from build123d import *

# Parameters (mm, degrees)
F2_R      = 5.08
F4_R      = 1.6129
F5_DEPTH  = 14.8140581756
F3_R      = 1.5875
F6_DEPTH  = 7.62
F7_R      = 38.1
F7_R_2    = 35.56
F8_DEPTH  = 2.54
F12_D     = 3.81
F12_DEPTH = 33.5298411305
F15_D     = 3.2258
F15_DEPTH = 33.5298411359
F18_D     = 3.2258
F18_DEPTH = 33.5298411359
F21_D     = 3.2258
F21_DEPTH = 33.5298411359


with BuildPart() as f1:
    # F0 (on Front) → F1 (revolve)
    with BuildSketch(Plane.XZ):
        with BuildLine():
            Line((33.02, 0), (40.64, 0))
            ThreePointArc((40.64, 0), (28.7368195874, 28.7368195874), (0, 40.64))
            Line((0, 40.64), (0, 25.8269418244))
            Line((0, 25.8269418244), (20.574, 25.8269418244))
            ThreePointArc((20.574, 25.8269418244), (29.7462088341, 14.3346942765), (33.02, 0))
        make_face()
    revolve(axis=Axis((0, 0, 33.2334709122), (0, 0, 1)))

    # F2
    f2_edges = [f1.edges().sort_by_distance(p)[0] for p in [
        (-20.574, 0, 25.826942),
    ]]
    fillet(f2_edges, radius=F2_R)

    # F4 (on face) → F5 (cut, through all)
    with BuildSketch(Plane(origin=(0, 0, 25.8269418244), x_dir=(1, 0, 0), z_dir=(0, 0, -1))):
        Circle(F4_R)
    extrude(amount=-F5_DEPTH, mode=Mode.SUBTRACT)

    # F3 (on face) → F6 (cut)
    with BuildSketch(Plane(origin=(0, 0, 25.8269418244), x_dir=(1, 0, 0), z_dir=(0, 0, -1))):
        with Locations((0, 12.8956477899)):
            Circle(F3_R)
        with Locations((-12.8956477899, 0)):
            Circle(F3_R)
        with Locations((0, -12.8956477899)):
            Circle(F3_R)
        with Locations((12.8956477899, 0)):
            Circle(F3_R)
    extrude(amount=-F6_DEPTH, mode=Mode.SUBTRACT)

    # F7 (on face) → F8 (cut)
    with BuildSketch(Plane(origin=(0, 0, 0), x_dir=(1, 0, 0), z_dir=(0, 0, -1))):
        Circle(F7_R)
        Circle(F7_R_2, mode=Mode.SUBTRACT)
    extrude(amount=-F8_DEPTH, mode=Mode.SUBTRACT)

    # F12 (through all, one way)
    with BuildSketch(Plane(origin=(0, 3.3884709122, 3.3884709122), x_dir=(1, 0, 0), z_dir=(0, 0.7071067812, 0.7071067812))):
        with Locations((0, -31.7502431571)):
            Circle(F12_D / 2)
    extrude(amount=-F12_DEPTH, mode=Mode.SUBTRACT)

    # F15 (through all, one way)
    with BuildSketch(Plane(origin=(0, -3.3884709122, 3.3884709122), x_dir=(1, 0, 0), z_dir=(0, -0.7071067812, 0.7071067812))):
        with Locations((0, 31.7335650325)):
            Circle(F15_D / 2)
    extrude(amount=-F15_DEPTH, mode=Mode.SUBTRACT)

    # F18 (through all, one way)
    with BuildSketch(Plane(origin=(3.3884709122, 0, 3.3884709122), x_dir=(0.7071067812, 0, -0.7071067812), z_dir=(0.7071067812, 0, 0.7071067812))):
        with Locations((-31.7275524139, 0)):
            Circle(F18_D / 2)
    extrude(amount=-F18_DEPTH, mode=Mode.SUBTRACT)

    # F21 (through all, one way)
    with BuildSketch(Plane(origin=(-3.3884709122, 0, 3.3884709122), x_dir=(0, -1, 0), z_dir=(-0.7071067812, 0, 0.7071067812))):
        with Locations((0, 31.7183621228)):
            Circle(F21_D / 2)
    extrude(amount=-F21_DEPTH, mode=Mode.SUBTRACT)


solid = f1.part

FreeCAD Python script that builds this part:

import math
import FreeCAD as App
import Part
import Sketcher

V = App.Vector
Q = App.Units.Quantity


def edges_at(feature, points):
    """Names of the edges that pass closest to the given points."""
    edges = feature.Shape.Edges
    near = lambda p: min(range(len(edges)), key=lambda i: edges[i].distToShape(Part.Vertex(*p))[0])
    return sorted({f"Edge{near(p) + 1}" for p in points})

doc = App.newDocument("Part")
body = doc.addObject("PartDesign::Body", "Body")

# Sketch on XZ plane
sketch1 = body.newObject("Sketcher::SketchObject", "Sketch")
sketch1.AttachmentSupport = (doc.getObject("XZ_Plane"), [""])
sketch1.MapMode = "FlatFace"
sketch1.addGeometry(Part.LineSegment(V(33, 0, 0), V(41, 0, 0)), False)
sketch1.addGeometry(Part.ArcOfCircle(Part.Circle(V(0, 0, 0), V(0, 0, 1), 41), math.radians(0), math.radians(90)), False)
sketch1.addGeometry(Part.LineSegment(V(0, 41, 0), V(0, 26, 0)), False)
sketch1.addGeometry(Part.LineSegment(V(0, 26, 0), V(21, 26, 0)), False)
sketch1.addGeometry(Part.ArcOfCircle(Part.Circle(V(0, 0, 0), V(0, 0, 1), 33), math.radians(0), math.radians(51)), False)
sketch1.addConstraint(Sketcher.Constraint("Coincident", 0, 2, 1, 1))
sketch1.addConstraint(Sketcher.Constraint("Coincident", 1, 2, 2, 1))
sketch1.addConstraint(Sketcher.Constraint("Coincident", 2, 2, 3, 1))
sketch1.addConstraint(Sketcher.Constraint("Coincident", 3, 2, 4, 2))
sketch1.addConstraint(Sketcher.Constraint("Coincident", 4, 1, 0, 1))
sketch1.addConstraint(Sketcher.Constraint("Horizontal", 0))
sketch1.addConstraint(Sketcher.Constraint("Vertical", 2))
sketch1.addConstraint(Sketcher.Constraint("Horizontal", 3))
sketch1.addConstraint(Sketcher.Constraint("Coincident", 1, 3, -1, 1))
sketch1.addConstraint(Sketcher.Constraint("Coincident", 4, 3, -1, 1))
sketch1.addConstraint(Sketcher.Constraint("PointOnObject", 0, 2, -1))
sketch1.addConstraint(Sketcher.Constraint("PointOnObject", 1, 2, -2))
sketch1.addConstraint(Sketcher.Constraint("Radius", 1, Q("1.6 in")))
sketch1.addConstraint(Sketcher.Constraint("Radius", 4, Q("1.3 in")))
sketch1.addConstraint(Sketcher.Constraint("DistanceX", 3, 1, 3, 2, Q("0.81 in")))
revolution = body.newObject("PartDesign::Revolution", "Revolution")
revolution.Profile = sketch1
revolution.ReferenceAxis = (sketch1, ["V_Axis"])
revolution.Angle = 360
doc.recompute()

fillet = body.newObject("PartDesign::Fillet", "Fillet")
fillet.Base = (revolution, edges_at(revolution, [(-20.574, 0, 25.827)]))
fillet.Radius = Q("0.2 in")

# Sketch on XY plane
sketch2 = body.newObject("Sketcher::SketchObject", "Sketch001")
sketch2.AttachmentSupport = (doc.getObject("XY_Plane"), [""])
sketch2.MapMode = "FlatFace"
sketch2.AttachmentOffset = App.Placement(V(0, 0, 25.826942), App.Rotation())
sketch2.addGeometry(Part.Circle(V(0, 0, 0), V(0, 0, 1), 1.6), False)
sketch2.addConstraint(Sketcher.Constraint("Coincident", 0, 3, -1, 1))
sketch2.addConstraint(Sketcher.Constraint("Diameter", 0, Q("0.127 in")))
pocket1 = body.newObject("PartDesign::Pocket", "Pocket")
pocket1.Profile = sketch2
pocket1.Type = "ThroughAll"
pocket1.Reversed = True

# Sketch on XY plane
sketch3 = body.newObject("Sketcher::SketchObject", "Sketch002")
sketch3.AttachmentSupport = (doc.getObject("XY_Plane"), [""])
sketch3.MapMode = "FlatFace"
sketch3.AttachmentOffset = App.Placement(V(0, 0, 25.826942), App.Rotation())
sketch3.addGeometry(Part.Circle(V(0, -12.9, 0), V(0, 0, 1), 1.6), False)
sketch3.addGeometry(Part.Circle(V(-12.9, 0, 0), V(0, 0, 1), 1.6), False)
sketch3.addGeometry(Part.Circle(V(0, 12.9, 0), V(0, 0, 1), 1.6), False)
sketch3.addGeometry(Part.Circle(V(12.9, 0, 0), V(0, 0, 1), 1.6), False)
sketch3.addConstraint(Sketcher.Constraint("Equal", 0, 1))
sketch3.addConstraint(Sketcher.Constraint("Equal", 1, 2))
sketch3.addConstraint(Sketcher.Constraint("Equal", 2, 3))
sketch3.addConstraint(Sketcher.Constraint("Symmetric", 0, 3, 2, 3, -1, 1))
sketch3.addConstraint(Sketcher.Constraint("Symmetric", 1, 3, 3, 3, -1, 1))
sketch3.addConstraint(Sketcher.Constraint("PointOnObject", 0, 3, -2))
sketch3.addConstraint(Sketcher.Constraint("PointOnObject", 1, 3, -1))
sketch3.addConstraint(Sketcher.Constraint("Diameter", 0, Q("0.125 in")))
sketch3.addConstraint(Sketcher.Constraint("DistanceY", 0, 3, -1, 1, 12.895648))
sketch3.addConstraint(Sketcher.Constraint("DistanceX", 1, 3, -1, 1, 12.895648))
pocket2 = body.newObject("PartDesign::Pocket", "Pocket001")
pocket2.Profile = sketch3
pocket2.Length = Q("0.3 in")
pocket2.Reversed = True

# Sketch on XY plane
sketch4 = body.newObject("Sketcher::SketchObject", "Sketch003")
sketch4.AttachmentSupport = (doc.getObject("XY_Plane"), [""])
sketch4.MapMode = "FlatFace"
sketch4.addGeometry(Part.Circle(V(0, 0, 0), V(0, 0, 1), 38), False)
sketch4.addGeometry(Part.Circle(V(0, 0, 0), V(0, 0, 1), 36), False)
sketch4.addConstraint(Sketcher.Constraint("Coincident", 0, 3, -1, 1))
sketch4.addConstraint(Sketcher.Constraint("Coincident", 1, 3, -1, 1))
sketch4.addConstraint(Sketcher.Constraint("Diameter", 0, Q("3 in")))
sketch4.addConstraint(Sketcher.Constraint("Diameter", 1, Q("2.8 in")))
pocket3 = body.newObject("PartDesign::Pocket", "Pocket002")
pocket3.Profile = sketch4
pocket3.Length = Q("0.1 in")
pocket3.Reversed = True

# Sketch on an angled plane
sketch5 = body.newObject("Sketcher::SketchObject", "Sketch004")
sketch5.Placement = App.Placement(V(0, 3.388471, 3.388471), App.Rotation(V(1, 0, 0), V(0, 0.707106781, -0.707106781), V(0, 0.707106781, 0.707106781), "ZXY"))
sketch5.addGeometry(Part.Circle(V(0, -31.8, 0), V(0, 0, 1), 1.9), False)
sketch5.addConstraint(Sketcher.Constraint("PointOnObject", 0, 3, -2))
sketch5.addConstraint(Sketcher.Constraint("Diameter", 0, Q("0.15 in")))
sketch5.addConstraint(Sketcher.Constraint("DistanceY", 0, 3, -1, 1, 31.750243))
pocket4 = body.newObject("PartDesign::Pocket", "Pocket003")
pocket4.Profile = sketch5
pocket4.Type = "ThroughAll"

# Sketch on an angled plane
sketch6 = body.newObject("Sketcher::SketchObject", "Sketch005")
sketch6.Placement = App.Placement(V(0, -3.388471, 3.388471), App.Rotation(V(1, 0, 0), V(0, 0.707106781, 0.707106781), V(0, -0.707106781, 0.707106781), "ZXY"))
sketch6.addGeometry(Part.Circle(V(0, 31.7, 0), V(0, 0, 1), 1.6), False)
sketch6.addConstraint(Sketcher.Constraint("PointOnObject", 0, 3, -2))
sketch6.addConstraint(Sketcher.Constraint("Diameter", 0, Q("0.127 in")))
sketch6.addConstraint(Sketcher.Constraint("DistanceY", -1, 1, 0, 3, 31.733565))
pocket5 = body.newObject("PartDesign::Pocket", "Pocket004")
pocket5.Profile = sketch6
pocket5.Type = "ThroughAll"

# Sketch on an angled plane
sketch7 = body.newObject("Sketcher::SketchObject", "Sketch006")
sketch7.Placement = App.Placement(V(3.388471, 0, 3.388471), App.Rotation(V(0.707106781, 0, -0.707106781), V(0, 0.999999999, 0), V(0.707106781, 0, 0.707106781), "ZXY"))
sketch7.addGeometry(Part.Circle(V(-31.7, 0, 0), V(0, 0, 1), 1.6), False)
sketch7.addConstraint(Sketcher.Constraint("PointOnObject", 0, 3, -1))
sketch7.addConstraint(Sketcher.Constraint("Diameter", 0, Q("0.127 in")))
sketch7.addConstraint(Sketcher.Constraint("DistanceX", 0, 3, -1, 1, 31.727552))
pocket6 = body.newObject("PartDesign::Pocket", "Pocket005")
pocket6.Profile = sketch7
pocket6.Type = "ThroughAll"

# Sketch on an angled plane
sketch8 = body.newObject("Sketcher::SketchObject", "Sketch007")
sketch8.Placement = App.Placement(V(-3.388471, 0, 3.388471), App.Rotation(V(0, -1, 0), V(0.707106781, 0, 0.707106781), V(-0.707106781, 0, 0.707106781), "ZXY"))
sketch8.addGeometry(Part.Circle(V(0, 31.7, 0), V(0, 0, 1), 1.6), False)
sketch8.addConstraint(Sketcher.Constraint("PointOnObject", 0, 3, -2))
sketch8.addConstraint(Sketcher.Constraint("Diameter", 0, Q("0.127 in")))
sketch8.addConstraint(Sketcher.Constraint("DistanceY", -1, 1, 0, 3, 31.718362))
pocket7 = body.newObject("PartDesign::Pocket", "Pocket006")
pocket7.Profile = sketch8
pocket7.Type = "ThroughAll"

doc.recompute()
